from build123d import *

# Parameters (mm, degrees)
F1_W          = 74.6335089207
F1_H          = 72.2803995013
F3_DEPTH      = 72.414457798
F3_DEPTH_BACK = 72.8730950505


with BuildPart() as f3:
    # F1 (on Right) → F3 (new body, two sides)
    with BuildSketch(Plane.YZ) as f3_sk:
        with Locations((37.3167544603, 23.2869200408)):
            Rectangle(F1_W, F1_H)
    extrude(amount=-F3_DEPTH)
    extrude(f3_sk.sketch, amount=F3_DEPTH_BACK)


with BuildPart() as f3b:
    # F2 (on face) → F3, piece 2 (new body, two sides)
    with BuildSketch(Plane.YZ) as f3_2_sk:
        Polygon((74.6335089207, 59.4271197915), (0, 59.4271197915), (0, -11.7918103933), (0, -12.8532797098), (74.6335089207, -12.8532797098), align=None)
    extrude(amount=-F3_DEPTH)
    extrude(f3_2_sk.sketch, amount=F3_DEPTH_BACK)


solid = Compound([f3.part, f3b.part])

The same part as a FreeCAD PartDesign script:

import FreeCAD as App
import Part
import Sketcher


def add_polygon(sketch, points):
    """Adds a closed chain of lines whose ends are joined by coincident constraints."""
    first, n = sketch.GeometryCount, len(points)
    for a, b in zip(points, points[1:] + points[:1]):
        sketch.addGeometry(Part.LineSegment(App.Vector(*a, 0), App.Vector(*b, 0)), False)
    for i in range(n):
        sketch.addConstraint(Sketcher.Constraint("Coincident", first + i, 2, first + (i + 1) % n, 1))

doc = App.newDocument("Part")
body = doc.addObject("PartDesign::Body", "Body")

# Sketch on YZ plane
sketch1 = body.newObject("Sketcher::SketchObject", "Sketch")
sketch1.AttachmentSupport = (doc.getObject("YZ_Plane"), [""])
sketch1.MapMode = "FlatFace"
add_polygon(sketch1, [(0, 59), (0, -13), (75, -13), (75, 59)])  # lines 0-3
sketch1.addConstraint(Sketcher.Constraint("Vertical", 0))
sketch1.addConstraint(Sketcher.Constraint("Horizontal", 1))
sketch1.addConstraint(Sketcher.Constraint("Vertical", 2))
sketch1.addConstraint(Sketcher.Constraint("Horizontal", 3))
sketch1.addConstraint(Sketcher.Constraint("PointOnObject", 0, 2, -2))
sketch1.addConstraint(Sketcher.Constraint("DistanceY", 0, 2, 0, 1, 72.2804))
sketch1.addConstraint(Sketcher.Constraint("DistanceX", 1, 1, 1, 2, 74.633509))
sketch1.addConstraint(Sketcher.Constraint("DistanceY", 0, 2, -1, 1, 12.85328))
pad1 = body.newObject("PartDesign::Pad", "Pad")
pad1.Profile = sketch1
pad1.Type = "TwoLengths"
pad1.Length = 72.414458
pad1.Length2 = 72.873095
pad1.Reversed = True
body2 = doc.addObject("PartDesign::Body", "Body001")

# Sketch on YZ plane
sketch2 = body2.newObject("Sketcher::SketchObject", "Sketch001")
sketch2.AttachmentSupport = (doc.getObject("YZ_Plane001"), [""])
sketch2.MapMode = "FlatFace"
add_polygon(sketch2, [(75, 59), (0, 59), (0, -13), (75, -13)])  # lines 0-3
sketch2.addConstraint(Sketcher.Constraint("Horizontal", 0))
sketch2.addConstraint(Sketcher.Constraint("Vertical", 1))
sketch2.addConstraint(Sketcher.Constraint("Horizontal", 2))
sketch2.addConstraint(Sketcher.Constraint("Vertical", 3))
sketch2.addConstraint(Sketcher.Constraint("PointOnObject", 0, 2, -2))
sketch2.addConstraint(Sketcher.Constraint("DistanceY", 1, 2, 1, 1, 72.2804))
sketch2.addConstraint(Sketcher.Constraint("DistanceX", 0, 2, 0, 1, 74.633509))
sketch2.addConstraint(Sketcher.Constraint("DistanceY", -1, 1, 0, 2, 59.42712))
pad2 = body2.newObject("PartDesign::Pad", "Pad001")
pad2.Profile = sketch2
pad2.Type = "TwoLengths"
pad2.Length = 72.414458
pad2.Length2 = 72.873095
pad2.Reversed = True

doc.recompute()
